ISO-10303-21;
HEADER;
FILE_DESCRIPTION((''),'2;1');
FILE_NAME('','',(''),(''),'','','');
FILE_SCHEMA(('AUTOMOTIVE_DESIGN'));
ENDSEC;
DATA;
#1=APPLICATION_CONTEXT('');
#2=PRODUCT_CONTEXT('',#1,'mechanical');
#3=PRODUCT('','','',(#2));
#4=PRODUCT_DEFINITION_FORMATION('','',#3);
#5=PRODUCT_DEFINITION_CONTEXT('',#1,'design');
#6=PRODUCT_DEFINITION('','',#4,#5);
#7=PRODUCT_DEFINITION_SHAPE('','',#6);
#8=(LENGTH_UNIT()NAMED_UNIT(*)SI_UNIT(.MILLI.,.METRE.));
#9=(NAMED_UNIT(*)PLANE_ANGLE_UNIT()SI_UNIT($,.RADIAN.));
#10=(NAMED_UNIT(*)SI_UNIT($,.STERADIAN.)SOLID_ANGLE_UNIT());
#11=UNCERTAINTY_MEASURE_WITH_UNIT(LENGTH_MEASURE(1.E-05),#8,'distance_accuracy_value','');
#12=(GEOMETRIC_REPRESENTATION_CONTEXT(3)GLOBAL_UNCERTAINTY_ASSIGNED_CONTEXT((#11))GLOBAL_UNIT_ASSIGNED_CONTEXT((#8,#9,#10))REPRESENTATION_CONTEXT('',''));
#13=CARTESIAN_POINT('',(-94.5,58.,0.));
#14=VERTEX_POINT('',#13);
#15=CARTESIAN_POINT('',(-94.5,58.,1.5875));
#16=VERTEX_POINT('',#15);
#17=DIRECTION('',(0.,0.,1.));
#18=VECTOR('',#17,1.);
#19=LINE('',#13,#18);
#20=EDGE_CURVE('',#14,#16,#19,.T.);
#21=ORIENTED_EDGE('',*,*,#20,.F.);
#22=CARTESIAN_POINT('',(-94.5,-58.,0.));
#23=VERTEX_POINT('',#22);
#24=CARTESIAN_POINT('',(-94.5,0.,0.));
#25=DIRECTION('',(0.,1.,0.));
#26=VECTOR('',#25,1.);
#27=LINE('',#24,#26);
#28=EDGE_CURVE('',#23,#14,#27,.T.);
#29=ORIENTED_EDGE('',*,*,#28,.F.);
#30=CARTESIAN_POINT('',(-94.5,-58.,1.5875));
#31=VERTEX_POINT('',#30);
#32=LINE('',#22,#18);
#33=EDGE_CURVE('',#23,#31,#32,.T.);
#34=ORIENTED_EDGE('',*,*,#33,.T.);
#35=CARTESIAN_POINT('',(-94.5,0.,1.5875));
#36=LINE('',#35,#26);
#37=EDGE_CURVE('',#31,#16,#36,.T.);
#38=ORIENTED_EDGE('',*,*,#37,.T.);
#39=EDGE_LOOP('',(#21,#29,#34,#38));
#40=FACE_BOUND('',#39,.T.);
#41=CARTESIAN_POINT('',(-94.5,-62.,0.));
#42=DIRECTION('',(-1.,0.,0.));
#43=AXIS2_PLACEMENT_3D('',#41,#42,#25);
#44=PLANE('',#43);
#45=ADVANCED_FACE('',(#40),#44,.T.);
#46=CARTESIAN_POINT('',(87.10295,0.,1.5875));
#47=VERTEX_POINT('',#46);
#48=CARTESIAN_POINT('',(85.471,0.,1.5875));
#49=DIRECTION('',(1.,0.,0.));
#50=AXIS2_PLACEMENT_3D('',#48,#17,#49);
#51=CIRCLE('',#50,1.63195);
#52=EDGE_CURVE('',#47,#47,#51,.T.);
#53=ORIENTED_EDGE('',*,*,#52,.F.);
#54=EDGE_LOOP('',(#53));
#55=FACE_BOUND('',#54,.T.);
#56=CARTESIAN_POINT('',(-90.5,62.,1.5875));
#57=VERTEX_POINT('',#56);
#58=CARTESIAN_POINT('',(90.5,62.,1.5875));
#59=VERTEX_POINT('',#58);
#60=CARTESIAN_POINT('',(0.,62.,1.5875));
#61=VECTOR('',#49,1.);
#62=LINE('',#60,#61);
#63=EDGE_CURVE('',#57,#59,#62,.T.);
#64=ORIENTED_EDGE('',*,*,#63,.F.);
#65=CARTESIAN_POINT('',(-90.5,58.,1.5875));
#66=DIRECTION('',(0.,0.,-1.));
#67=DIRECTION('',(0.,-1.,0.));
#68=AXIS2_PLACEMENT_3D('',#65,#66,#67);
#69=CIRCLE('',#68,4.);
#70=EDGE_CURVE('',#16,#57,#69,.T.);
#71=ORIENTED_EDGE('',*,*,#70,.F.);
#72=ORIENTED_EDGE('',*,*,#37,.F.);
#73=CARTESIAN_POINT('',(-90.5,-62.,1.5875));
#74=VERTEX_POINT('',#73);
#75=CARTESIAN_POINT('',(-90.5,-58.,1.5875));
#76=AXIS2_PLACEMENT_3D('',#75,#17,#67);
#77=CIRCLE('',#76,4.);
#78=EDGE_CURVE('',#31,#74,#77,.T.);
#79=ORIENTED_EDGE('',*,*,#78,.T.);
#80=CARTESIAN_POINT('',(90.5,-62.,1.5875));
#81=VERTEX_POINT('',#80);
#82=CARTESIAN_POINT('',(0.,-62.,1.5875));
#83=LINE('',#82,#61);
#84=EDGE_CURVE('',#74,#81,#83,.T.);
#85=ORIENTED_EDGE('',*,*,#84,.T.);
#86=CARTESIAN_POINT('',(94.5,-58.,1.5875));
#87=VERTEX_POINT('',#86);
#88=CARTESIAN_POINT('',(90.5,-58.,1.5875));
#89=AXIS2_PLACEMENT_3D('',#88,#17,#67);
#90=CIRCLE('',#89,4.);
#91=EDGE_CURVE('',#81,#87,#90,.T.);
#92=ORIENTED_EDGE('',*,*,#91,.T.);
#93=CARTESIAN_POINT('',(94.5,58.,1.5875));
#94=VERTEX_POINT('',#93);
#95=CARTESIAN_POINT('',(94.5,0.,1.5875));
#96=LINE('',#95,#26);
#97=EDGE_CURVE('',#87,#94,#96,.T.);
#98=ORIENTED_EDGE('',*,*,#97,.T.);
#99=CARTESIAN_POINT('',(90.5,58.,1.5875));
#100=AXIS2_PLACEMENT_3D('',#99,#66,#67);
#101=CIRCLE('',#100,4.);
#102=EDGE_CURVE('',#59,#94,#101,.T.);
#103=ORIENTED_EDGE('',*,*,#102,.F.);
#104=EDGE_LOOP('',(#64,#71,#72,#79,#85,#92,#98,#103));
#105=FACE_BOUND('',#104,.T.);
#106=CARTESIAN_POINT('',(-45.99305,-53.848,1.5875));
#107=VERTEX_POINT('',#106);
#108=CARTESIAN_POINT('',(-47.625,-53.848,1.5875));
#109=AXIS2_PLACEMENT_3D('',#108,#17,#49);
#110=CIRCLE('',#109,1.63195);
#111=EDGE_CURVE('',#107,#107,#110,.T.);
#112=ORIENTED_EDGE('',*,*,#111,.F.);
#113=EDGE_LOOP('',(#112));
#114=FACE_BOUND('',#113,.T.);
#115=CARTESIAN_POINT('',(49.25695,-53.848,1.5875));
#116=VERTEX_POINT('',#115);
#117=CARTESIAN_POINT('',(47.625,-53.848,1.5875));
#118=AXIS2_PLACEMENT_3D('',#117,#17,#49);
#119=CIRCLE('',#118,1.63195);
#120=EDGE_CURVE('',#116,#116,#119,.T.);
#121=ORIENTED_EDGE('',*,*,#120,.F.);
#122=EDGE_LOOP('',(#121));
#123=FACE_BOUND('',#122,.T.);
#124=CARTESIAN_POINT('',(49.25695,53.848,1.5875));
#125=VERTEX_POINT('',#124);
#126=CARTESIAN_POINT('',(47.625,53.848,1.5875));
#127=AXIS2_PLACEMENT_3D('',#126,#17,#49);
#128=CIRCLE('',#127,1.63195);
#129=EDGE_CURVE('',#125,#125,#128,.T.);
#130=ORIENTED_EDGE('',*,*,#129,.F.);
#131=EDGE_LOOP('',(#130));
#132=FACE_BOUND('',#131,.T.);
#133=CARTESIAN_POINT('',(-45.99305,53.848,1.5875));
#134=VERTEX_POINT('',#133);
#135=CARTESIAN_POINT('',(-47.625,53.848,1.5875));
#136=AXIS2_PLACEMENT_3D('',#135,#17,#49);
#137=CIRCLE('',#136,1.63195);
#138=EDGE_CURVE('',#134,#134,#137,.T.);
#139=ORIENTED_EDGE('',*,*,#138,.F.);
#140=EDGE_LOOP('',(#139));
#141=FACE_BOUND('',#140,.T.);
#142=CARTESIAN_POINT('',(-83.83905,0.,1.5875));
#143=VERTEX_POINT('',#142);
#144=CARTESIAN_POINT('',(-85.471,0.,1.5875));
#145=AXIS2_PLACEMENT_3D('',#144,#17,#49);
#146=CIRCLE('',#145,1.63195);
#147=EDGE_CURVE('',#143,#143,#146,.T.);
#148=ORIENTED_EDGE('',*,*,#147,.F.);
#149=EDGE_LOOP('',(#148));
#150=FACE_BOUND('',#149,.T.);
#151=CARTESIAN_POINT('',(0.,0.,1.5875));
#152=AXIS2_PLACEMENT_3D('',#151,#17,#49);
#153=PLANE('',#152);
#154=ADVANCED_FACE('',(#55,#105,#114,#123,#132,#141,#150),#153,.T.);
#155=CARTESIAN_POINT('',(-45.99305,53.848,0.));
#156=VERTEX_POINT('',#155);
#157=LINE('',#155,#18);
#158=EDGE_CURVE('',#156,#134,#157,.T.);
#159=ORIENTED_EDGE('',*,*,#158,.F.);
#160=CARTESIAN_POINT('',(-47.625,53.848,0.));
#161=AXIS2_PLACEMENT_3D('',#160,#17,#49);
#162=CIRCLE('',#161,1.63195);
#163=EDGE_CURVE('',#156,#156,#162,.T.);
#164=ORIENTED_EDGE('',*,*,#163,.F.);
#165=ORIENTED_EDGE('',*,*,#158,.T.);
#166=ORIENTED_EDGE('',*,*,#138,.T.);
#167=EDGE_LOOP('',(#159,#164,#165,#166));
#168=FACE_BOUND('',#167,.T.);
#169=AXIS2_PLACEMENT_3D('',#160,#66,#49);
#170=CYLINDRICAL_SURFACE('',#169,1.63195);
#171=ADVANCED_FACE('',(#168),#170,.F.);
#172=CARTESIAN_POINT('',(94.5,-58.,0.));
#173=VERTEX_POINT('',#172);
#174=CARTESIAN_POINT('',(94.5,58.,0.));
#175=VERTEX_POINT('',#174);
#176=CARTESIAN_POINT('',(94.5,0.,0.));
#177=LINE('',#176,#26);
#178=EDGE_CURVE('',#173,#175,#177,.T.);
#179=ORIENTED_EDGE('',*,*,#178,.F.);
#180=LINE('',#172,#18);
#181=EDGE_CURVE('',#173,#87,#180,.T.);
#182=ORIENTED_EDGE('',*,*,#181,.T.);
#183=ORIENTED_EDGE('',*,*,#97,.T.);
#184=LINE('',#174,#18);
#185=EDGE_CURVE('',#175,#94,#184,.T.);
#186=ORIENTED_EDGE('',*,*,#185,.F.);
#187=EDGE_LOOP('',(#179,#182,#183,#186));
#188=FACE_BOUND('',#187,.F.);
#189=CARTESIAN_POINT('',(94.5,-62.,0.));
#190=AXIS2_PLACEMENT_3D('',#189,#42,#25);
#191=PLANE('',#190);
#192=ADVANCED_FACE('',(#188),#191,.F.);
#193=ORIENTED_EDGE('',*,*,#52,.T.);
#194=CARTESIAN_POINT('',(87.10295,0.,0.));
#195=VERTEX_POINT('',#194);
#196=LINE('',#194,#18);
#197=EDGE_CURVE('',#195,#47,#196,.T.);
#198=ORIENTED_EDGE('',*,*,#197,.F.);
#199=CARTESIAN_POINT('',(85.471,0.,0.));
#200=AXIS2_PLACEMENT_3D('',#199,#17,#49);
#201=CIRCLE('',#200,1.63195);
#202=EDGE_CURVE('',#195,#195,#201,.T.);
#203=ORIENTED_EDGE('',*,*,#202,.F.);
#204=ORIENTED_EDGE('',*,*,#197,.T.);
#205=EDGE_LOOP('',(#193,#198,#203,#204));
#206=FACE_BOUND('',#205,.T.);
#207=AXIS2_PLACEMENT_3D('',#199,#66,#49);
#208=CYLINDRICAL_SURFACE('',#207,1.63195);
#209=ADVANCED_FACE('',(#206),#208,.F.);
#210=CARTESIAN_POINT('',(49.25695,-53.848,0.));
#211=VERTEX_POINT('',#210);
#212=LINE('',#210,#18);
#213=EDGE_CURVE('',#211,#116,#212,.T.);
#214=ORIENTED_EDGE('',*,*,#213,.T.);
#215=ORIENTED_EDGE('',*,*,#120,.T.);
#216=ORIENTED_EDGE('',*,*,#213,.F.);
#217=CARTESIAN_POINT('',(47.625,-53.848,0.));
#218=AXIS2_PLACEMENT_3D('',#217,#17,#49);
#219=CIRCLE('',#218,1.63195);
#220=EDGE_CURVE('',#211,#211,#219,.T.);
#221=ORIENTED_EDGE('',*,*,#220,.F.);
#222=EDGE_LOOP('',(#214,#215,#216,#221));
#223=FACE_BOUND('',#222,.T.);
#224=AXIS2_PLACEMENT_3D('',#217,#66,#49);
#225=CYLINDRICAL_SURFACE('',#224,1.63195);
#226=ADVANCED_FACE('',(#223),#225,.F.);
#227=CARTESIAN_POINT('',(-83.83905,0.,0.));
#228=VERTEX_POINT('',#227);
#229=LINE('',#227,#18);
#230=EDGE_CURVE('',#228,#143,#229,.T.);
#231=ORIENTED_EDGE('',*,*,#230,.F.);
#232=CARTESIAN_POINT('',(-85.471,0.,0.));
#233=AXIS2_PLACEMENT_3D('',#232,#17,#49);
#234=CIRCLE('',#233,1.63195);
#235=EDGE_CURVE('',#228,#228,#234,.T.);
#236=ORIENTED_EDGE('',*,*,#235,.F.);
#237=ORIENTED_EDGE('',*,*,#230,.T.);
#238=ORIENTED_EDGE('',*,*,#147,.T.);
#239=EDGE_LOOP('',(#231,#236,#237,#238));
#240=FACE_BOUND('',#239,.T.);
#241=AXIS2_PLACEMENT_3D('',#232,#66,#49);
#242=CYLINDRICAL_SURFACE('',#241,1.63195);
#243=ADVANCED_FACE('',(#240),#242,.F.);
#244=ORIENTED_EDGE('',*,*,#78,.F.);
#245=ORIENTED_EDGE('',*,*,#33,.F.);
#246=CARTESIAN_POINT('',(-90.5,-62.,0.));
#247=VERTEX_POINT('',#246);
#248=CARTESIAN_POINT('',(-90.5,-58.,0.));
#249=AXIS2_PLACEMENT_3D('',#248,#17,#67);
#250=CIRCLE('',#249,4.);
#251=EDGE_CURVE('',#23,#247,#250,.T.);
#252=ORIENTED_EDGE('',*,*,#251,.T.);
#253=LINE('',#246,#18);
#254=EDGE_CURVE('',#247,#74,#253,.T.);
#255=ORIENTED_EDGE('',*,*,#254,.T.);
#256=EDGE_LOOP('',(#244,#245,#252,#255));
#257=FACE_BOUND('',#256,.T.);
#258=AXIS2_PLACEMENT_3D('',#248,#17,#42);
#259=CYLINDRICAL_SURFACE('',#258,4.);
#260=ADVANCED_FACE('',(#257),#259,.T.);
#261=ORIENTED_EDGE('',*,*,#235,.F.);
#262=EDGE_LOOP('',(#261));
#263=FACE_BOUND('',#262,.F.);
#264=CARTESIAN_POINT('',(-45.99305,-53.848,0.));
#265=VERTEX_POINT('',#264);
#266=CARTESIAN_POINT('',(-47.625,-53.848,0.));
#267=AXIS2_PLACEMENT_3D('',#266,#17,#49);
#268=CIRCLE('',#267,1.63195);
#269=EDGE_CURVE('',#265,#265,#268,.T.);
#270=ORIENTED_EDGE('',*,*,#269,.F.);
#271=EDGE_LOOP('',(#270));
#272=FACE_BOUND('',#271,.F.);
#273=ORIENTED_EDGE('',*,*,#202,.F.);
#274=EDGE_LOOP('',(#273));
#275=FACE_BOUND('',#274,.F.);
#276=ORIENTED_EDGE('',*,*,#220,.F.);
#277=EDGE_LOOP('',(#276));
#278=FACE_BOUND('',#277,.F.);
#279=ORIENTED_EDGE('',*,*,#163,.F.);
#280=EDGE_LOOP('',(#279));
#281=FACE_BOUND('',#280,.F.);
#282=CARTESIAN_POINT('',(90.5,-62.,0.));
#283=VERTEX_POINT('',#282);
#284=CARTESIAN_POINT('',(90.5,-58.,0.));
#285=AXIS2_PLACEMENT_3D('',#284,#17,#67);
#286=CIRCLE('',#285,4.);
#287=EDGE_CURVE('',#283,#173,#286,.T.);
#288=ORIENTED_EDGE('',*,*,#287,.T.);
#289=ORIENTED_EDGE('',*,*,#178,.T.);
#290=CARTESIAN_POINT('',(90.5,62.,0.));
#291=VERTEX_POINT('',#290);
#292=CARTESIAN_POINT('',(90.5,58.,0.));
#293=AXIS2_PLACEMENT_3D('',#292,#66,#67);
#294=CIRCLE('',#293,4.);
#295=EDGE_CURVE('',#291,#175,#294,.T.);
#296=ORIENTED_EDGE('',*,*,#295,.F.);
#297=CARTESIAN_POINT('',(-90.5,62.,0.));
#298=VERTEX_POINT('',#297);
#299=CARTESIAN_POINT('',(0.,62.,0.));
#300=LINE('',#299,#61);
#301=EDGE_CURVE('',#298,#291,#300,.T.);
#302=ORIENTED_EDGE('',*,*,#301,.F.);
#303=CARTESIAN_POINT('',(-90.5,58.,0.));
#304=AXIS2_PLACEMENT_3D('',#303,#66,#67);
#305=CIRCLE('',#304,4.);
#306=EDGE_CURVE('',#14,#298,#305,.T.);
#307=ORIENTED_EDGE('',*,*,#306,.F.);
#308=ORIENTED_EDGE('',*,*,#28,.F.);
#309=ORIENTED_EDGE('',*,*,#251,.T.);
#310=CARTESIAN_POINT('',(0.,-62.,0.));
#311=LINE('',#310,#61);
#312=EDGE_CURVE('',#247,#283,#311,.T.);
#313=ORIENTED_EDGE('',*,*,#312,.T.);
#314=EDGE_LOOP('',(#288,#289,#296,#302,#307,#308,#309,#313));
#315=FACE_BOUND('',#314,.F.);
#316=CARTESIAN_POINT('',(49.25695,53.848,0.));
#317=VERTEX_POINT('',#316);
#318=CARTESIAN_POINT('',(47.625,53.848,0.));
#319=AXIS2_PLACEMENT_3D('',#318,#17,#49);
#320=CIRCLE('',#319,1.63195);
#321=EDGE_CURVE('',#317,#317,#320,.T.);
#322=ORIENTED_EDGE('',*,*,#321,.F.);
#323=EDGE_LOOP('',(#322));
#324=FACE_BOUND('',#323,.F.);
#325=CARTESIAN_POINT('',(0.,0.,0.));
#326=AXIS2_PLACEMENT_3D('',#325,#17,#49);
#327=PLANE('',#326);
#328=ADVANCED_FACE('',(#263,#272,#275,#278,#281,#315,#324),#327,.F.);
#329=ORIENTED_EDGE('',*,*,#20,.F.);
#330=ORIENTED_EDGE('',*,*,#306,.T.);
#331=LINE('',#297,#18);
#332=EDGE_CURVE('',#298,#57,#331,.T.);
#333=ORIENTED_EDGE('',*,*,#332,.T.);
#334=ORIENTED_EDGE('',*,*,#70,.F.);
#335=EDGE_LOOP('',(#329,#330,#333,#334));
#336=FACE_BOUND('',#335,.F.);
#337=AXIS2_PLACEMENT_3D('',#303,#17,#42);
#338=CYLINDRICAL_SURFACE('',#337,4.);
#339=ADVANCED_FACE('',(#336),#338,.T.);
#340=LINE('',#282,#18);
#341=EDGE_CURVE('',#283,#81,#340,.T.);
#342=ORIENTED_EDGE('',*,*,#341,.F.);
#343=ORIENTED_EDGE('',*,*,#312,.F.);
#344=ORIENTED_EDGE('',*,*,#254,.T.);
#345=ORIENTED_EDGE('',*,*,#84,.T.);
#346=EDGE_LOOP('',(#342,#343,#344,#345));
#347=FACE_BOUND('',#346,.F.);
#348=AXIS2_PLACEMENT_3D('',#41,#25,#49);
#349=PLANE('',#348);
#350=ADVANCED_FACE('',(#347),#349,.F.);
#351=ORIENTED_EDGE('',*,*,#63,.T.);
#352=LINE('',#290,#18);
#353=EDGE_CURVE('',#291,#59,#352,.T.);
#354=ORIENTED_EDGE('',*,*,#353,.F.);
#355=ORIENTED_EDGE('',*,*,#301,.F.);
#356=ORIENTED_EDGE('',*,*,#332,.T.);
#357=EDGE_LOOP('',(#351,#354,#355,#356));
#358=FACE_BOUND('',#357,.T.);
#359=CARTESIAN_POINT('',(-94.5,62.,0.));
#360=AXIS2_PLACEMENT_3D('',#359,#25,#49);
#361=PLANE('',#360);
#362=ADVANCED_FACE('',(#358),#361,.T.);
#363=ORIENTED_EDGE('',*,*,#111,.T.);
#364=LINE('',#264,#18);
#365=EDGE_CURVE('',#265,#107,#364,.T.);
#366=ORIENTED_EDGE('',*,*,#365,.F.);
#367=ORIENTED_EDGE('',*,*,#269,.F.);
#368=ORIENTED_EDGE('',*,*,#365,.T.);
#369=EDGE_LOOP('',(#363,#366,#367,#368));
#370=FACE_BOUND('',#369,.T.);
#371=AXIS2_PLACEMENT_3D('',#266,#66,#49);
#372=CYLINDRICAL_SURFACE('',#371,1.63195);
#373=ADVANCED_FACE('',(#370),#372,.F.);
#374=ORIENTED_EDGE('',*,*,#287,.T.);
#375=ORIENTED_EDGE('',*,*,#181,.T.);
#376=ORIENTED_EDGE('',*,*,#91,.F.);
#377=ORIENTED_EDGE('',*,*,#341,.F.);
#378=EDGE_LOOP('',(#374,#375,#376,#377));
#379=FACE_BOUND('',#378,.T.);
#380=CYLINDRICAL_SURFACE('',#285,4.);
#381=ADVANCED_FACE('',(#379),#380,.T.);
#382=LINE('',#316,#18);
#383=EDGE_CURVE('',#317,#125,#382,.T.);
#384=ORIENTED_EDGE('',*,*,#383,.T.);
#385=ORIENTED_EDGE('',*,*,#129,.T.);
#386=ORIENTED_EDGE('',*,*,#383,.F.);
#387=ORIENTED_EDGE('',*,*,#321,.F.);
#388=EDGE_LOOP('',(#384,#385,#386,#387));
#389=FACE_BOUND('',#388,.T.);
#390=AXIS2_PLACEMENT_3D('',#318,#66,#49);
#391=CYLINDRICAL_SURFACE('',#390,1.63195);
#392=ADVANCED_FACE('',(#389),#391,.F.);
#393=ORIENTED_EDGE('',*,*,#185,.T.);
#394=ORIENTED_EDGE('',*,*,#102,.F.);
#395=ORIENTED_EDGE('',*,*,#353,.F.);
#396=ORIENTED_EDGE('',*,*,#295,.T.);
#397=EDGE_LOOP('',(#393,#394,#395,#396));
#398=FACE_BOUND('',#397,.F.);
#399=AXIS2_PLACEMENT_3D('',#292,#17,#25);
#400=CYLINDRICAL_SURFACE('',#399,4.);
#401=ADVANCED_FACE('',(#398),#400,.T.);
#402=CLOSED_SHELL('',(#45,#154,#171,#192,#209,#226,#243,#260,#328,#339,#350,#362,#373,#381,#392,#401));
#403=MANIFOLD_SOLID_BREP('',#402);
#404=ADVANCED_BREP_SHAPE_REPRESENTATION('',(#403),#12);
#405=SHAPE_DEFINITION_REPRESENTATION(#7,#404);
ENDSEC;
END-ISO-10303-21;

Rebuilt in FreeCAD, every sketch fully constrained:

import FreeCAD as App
import Part
import Sketcher
from FreeCAD import Vector
Q = App.Units.Quantity


def edges_at(feature, points):
    """Names of the edges that pass closest to the given points."""
    edges = feature.Shape.Edges
    near = lambda p: min(range(len(edges)), key=lambda i: edges[i].distToShape(Part.Vertex(*p))[0])
    return sorted({f"Edge{near(p) + 1}" for p in points})


def add_polygon(sketch, points):
    """Adds a closed chain of lines whose ends are joined by coincident constraints."""
    first, n = sketch.GeometryCount, len(points)
    for a, b in zip(points, points[1:] + points[:1]):
        sketch.addGeometry(Part.LineSegment(App.Vector(*a, 0), App.Vector(*b, 0)), False)
    for i in range(n):
        sketch.addConstraint(Sketcher.Constraint("Coincident", first + i, 2, first + (i + 1) % n, 1))

doc = App.newDocument("Part")
params = doc.addObject("Spreadsheet::Sheet", "Params")
for row, (alias, value) in enumerate([
    ("sketch1_width", "189 mm"),
    ("sketch1_height", "124 mm"),
    ("pad1_length", "1.5875 mm"),
    ("fillet_radius", "4 mm"),
], start=1):
    params.set(f"A{row}", alias)
    params.set(f"B{row}", "=" + value)
    params.setAlias(f"B{row}", alias)

body = doc.addObject("PartDesign::Body", "Body")

# Sketch on XY plane
sketch1 = body.newObject("Sketcher::SketchObject", "Sketch")
sketch1.AttachmentSupport = (doc.getObject("XY_Plane"), [""])
sketch1.MapMode = "FlatFace"
add_polygon(sketch1, [(-94.5, 62), (-94.5, -62), (94.5, -62), (94.5, 62)])  # lines 0-3
sketch1.addGeometry(Part.Circle(Vector(-47.6, -53.8, 0), Vector(0, 0, 1), 1.6), False)  # 4
sketch1.addGeometry(Part.Circle(Vector(47.6, -53.8, 0), Vector(0, 0, 1), 1.6), False)  # 5
sketch1.addGeometry(Part.Circle(Vector(-85.5, 0, 0), Vector(0, 0, 1), 1.6), False)  # 6
sketch1.addGeometry(Part.Circle(Vector(-47.6, 53.8, 0), Vector(0, 0, 1), 1.6), False)  # 7
sketch1.addGeometry(Part.Circle(Vector(85.5, 0, 0), Vector(0, 0, 1), 1.6), False)  # 8
sketch1.addGeometry(Part.Circle(Vector(47.6, 53.8, 0), Vector(0, 0, 1), 1.6), False)  # 9
sketch1.addConstraint([
    Sketcher.Constraint("Vertical", 0),
    Sketcher.Constraint("Horizontal", 1),
    Sketcher.Constraint("Vertical", 2),
    Sketcher.Constraint("Horizontal", 3),
    Sketcher.Constraint("Equal", 4, 5),
    Sketcher.Constraint("Equal", 5, 6),
    Sketcher.Constraint("Equal", 6, 7),
    Sketcher.Constraint("Equal", 7, 8),
    Sketcher.Constraint("Equal", 8, 9),
    Sketcher.Constraint("Symmetric", 5, 3, 7, 3, -1, 1),
    Sketcher.Constraint("Symmetric", 6, 3, 8, 3, -1, 1),
    Sketcher.Constraint("Symmetric", 4, 3, 9, 3, -1, 1),
    Sketcher.Constraint("Symmetric", 0, 2, 2, 2, -1, 1),
    Sketcher.Constraint("Symmetric", 4, 3, 5, 3, -2),
    Sketcher.Constraint("PointOnObject", 6, 3, -1),
    Sketcher.Constraint("DistanceX", 1, 1, 1, 2, Q("189 mm")),
    Sketcher.Constraint("DistanceY", 0, 2, 0, 1, Q("124 mm")),
    Sketcher.Constraint("Diameter", 4, Q("3.2639 mm")),
    Sketcher.Constraint("DistanceX", 4, 3, 5, 3, Q("95.25 mm")),
    Sketcher.Constraint("DistanceY", 4, 3, -1, 1, Q("53.848 mm")),
    Sketcher.Constraint("DistanceX", 6, 3, -1, 1, Q("85.471 mm")),
])
sketch1.setExpression("Constraints[19]", "Params.sketch1_width")
sketch1.setExpression("Constraints[20]", "Params.sketch1_height")
pad1 = body.newObject("PartDesign::Pad", "Pad")
pad1.Profile = sketch1
pad1.setExpression("Length", "Params.pad1_length")
doc.recompute()

fillet = body.newObject("PartDesign::Fillet", "Fillet")
fillet.Base = (pad1, edges_at(pad1, [
    (-94.5, 62, 0.794),
    (-94.5, -62, 0.794),
    (94.5, 62, 0.794),
    (94.5, -62, 0.794),
]))
fillet.setExpression("Radius", "Params.fillet_radius")

doc.recompute()
